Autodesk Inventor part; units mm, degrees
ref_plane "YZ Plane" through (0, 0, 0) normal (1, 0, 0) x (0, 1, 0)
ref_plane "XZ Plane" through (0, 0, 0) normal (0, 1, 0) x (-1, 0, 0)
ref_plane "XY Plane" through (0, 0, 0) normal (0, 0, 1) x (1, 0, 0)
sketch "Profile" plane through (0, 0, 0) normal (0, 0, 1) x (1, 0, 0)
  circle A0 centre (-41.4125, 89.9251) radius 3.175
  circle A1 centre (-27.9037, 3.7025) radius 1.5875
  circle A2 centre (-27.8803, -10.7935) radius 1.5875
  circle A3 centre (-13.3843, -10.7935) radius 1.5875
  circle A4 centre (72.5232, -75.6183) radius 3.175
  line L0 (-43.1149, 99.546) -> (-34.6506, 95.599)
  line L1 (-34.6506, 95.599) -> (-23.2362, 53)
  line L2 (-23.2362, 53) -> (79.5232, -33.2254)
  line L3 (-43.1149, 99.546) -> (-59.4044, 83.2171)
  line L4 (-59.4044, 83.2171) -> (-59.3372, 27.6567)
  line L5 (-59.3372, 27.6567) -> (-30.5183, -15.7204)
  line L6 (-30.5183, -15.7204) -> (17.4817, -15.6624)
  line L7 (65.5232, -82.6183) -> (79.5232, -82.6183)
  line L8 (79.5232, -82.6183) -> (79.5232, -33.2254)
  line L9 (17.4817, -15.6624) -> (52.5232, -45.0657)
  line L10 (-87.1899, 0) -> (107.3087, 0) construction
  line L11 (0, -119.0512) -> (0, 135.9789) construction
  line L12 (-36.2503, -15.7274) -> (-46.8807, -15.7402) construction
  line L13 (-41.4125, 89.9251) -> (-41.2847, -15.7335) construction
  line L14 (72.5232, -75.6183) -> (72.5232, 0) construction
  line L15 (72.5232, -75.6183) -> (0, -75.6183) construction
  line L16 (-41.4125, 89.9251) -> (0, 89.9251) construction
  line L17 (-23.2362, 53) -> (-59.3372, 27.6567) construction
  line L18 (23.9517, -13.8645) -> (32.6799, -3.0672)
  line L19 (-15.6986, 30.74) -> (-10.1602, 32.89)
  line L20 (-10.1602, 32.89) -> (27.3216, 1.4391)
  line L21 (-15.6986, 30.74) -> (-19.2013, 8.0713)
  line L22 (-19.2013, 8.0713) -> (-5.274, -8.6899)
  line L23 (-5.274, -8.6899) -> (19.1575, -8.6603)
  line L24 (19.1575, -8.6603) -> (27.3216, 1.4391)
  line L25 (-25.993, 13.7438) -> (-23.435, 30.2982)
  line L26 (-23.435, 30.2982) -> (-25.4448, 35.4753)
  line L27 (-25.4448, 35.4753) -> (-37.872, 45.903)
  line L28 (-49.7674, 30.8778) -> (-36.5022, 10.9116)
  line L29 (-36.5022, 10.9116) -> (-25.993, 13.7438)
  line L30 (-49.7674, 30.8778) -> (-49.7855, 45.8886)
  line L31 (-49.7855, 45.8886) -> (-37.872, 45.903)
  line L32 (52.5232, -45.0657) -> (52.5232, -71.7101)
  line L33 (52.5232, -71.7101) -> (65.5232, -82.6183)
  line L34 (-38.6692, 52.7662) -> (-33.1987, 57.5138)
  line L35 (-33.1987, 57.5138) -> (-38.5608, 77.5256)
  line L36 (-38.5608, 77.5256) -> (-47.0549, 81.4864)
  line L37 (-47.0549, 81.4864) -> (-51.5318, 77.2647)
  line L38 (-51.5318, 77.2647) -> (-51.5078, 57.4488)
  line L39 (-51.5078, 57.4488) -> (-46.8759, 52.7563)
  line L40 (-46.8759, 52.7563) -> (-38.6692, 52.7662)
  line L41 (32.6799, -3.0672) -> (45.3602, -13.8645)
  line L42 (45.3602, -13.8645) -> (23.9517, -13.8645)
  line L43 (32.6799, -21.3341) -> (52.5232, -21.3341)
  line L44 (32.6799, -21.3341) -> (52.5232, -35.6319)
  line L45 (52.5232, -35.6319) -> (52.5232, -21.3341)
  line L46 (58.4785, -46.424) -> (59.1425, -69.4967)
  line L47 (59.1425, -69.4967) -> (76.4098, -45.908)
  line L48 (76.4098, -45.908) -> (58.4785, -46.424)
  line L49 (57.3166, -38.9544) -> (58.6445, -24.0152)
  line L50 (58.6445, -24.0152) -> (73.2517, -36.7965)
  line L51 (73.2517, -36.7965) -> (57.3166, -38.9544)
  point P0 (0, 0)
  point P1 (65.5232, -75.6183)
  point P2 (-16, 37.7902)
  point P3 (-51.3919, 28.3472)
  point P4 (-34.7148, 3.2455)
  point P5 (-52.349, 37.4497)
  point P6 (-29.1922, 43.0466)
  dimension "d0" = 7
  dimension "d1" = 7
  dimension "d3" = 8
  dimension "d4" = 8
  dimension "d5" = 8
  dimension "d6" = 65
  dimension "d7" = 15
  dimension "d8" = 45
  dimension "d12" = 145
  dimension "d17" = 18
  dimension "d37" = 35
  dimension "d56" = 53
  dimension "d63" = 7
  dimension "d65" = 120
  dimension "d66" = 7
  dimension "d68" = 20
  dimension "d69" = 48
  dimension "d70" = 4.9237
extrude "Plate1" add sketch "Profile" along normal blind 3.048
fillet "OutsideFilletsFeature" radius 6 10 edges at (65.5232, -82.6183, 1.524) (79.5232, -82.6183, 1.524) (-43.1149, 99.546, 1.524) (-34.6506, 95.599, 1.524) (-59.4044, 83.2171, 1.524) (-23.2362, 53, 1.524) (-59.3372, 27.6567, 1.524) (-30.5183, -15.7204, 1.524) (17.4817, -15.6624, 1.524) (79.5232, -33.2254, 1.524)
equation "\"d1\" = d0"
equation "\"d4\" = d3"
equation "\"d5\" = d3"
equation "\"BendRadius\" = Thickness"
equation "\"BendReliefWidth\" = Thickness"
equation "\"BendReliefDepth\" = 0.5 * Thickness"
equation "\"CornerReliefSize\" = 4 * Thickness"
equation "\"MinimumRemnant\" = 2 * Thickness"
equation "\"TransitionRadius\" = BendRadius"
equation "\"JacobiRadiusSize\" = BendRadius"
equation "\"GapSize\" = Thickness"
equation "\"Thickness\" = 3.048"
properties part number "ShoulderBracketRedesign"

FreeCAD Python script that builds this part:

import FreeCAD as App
import Part
import Sketcher
from FreeCAD import Vector
Q = App.Units.Quantity


def edges_at(feature, points):
    """Names of the edges that pass closest to the given points."""
    edges = feature.Shape.Edges
    near = lambda p: min(range(len(edges)), key=lambda i: edges[i].distToShape(Part.Vertex(*p))[0])
    return sorted({f"Edge{near(p) + 1}" for p in points})


def add_polygon(sketch, points):
    """Adds a closed chain of lines whose ends are joined by coincident constraints."""
    first, n = sketch.GeometryCount, len(points)
    for a, b in zip(points, points[1:] + points[:1]):
        sketch.addGeometry(Part.LineSegment(App.Vector(*a, 0), App.Vector(*b, 0)), False)
    for i in range(n):
        sketch.addConstraint(Sketcher.Constraint("Coincident", first + i, 2, first + (i + 1) % n, 1))

doc = App.newDocument("Part")
params = doc.addObject("Spreadsheet::Sheet", "Params")
for row, (alias, value) in enumerate([
    ("sketch1_diameter", "0.25 in"),
    ("sketch1_diameter2", "0.25 in"),
    ("sketch1_diameter3", "0.125 in"),
    ("sketch1_diameter4", "0.125 in"),
    ("sketch1_diameter5", "0.125 in"),
    ("pad1_length", "0.12 in"),
    ("fillet_radius", "6 mm"),
], start=1):
    params.set(f"A{row}", alias)
    params.set(f"B{row}", "=" + value)
    params.setAlias(f"B{row}", alias)

body = doc.addObject("PartDesign::Body", "Body")

# Sketch on XY plane
sketch1 = body.newObject("Sketcher::SketchObject", "Sketch")
sketch1.AttachmentSupport = (doc.getObject("XY_Plane"), [""])
sketch1.MapMode = "FlatFace"
add_polygon(sketch1, [(-34.6506, 95.599), (-43.1149, 99.546), (-59.4044, 83.2171), (-59.3372, 27.6567), (-30.5183, -15.7204), (17.4817, -15.6624), (52.5232, -45.0657), (52.5232, -71.7101), (65.5232, -82.6183), (79.5232, -82.6183), (79.5232, -33.2254), (-23.2362, 53)])  # lines 0-11
sketch1.addGeometry(Part.Circle(Vector(-27.8803, -10.7935, 0), Vector(0, 0, 1), 1.5875), False)  # 12
sketch1.addGeometry(Part.Circle(Vector(-27.9037, 3.7025, 0), Vector(0, 0, 1), 1.5875), False)  # 13
sketch1.addGeometry(Part.Circle(Vector(-13.3843, -10.7935, 0), Vector(0, 0, 1), 1.5875), False)  # 14
sketch1.addGeometry(Part.Circle(Vector(72.5232, -75.6183, 0), Vector(0, 0, 1), 3.175), False)  # 15
add_polygon(sketch1, [(59.1425, -69.4967), (58.4785, -46.424), (76.4098, -45.908)])  # lines 16-18
add_polygon(sketch1, [(52.5232, -35.6319), (32.6799, -21.3341), (52.5232, -21.3341)])  # lines 19-21
add_polygon(sketch1, [(45.3602, -13.8645), (23.9517, -13.8645), (32.6799, -3.0672)])  # lines 22-24
add_polygon(sketch1, [(73.2517, -36.7965), (57.3166, -38.9544), (58.6445, -24.0152)])  # lines 25-27
add_polygon(sketch1, [(-23.435, 30.2982), (-25.993, 13.7438), (-36.5022, 10.9116), (-49.7674, 30.8778), (-49.7855, 45.8886), (-37.872, 45.903), (-25.4448, 35.4753)])  # lines 28-34
add_polygon(sketch1, [(-19.2013, 8.0713), (-15.6986, 30.74), (-10.1602, 32.89), (27.3216, 1.4391), (19.1575, -8.6603), (-5.274, -8.6899)])  # lines 35-40
add_polygon(sketch1, [(-33.1987, 57.5138), (-38.6692, 52.7662), (-46.8759, 52.7563), (-51.5078, 57.4488), (-51.5318, 77.2647), (-47.0549, 81.4864), (-38.5608, 77.5256)])  # lines 41-47
sketch1.addGeometry(Part.Circle(Vector(-41.4125, 89.9251, 0), Vector(0, 0, 1), 3.175), False)  # 48
sketch1.addConstraint([
    Sketcher.Constraint("Vertical", 6),
    Sketcher.Constraint("Horizontal", 8),
    Sketcher.Constraint("Vertical", 9),
    Sketcher.Constraint("Horizontal", 20),
    Sketcher.Constraint("Vertical", 21),
    Sketcher.Constraint("Horizontal", 22),
    Sketcher.Constraint("Diameter", 15, Q("0.25 in")),
    Sketcher.Constraint("Diameter", 48, Q("0.25 in")),
    Sketcher.Constraint("Diameter", 12, Q("0.125 in")),
    Sketcher.Constraint("Diameter", 13, Q("0.125 in")),
    Sketcher.Constraint("Diameter", 14, Q("0.125 in")),
    Sketcher.Constraint("DistanceX", 36, 2, -1, 1, Q("0.4 in")),
    Sketcher.Constraint("DistanceX", 5, 2, 15, 3, Q("0.7874 in")),
    Sketcher.Constraint("DistanceX", 7, 2, 15, 3, Q("0.2756 in")),
    Sketcher.Constraint("DistanceY", 7, 2, 15, 3, Q("0.2756 in")),
    Sketcher.Constraint("DistanceX", 15, 3, 8, 2, Q("0.2756 in")),
    Sketcher.Constraint("Distance", 4, Q("48 mm")),
    Sketcher.Constraint("DistanceY", 6, 2, 6, 1, Q("1.049 in")),
    Sketcher.Constraint("DistanceY", -1, 1, 10, 2, Q("53 mm")),
    Sketcher.Constraint("DistanceY", 3, 2, 28, 2, Q("1.16 in")),
    Sketcher.Constraint("DistanceX", 12, 3, 39, 2, Q("0.89 in")),
    Sketcher.Constraint("DistanceY", 9, 1, 9, 2, Q("1.9446 in")),
    Sketcher.Constraint("DistanceY", 21, 2, 21, 1, Q("0.5629 in")),
    Sketcher.Constraint("DistanceX", 4, 2, 15, 3, Q("2.167 in")),
    Sketcher.Constraint("DistanceY", 15, 3, 18, 2, Q("0.241 in")),
    Sketcher.Constraint("DistanceX", 20, 2, 9, 2, Q("1.063 in")),
    Sketcher.Constraint("DistanceX", 24, 2, 20, 2, Q("0.282 in")),
    Sketcher.Constraint("DistanceX", 20, 2, 26, 2, Q("0.241 in")),
    Sketcher.Constraint("DistanceX", 30, 2, 28, 2, Q("0.936 in")),
    Sketcher.Constraint("DistanceY", 30, 2, 33, 2, Q("0.181 in")),
    Sketcher.Constraint("DistanceY", 13, 3, 40, 2, Q("0.172 in")),
    Sketcher.Constraint("DistanceY", 45, 2, 0, 2, Q("0.711 in")),
    Sketcher.Constraint("DistanceX", 32, 2, 47, 2, Q("0.184 in")),
    Sketcher.Constraint("Distance", 0, Q("0.3677 in")),
    Sketcher.Constraint("Distance", 3, Q("2.0503 in")),
    Sketcher.Constraint("Distance", 11, Q("1.7363 in")),
    Sketcher.Constraint("Distance", 19, Q("0.9629 in")),
    Sketcher.Constraint("Distance", 23, Q("0.5466 in")),
    Sketcher.Constraint("Distance", 24, Q("0.6557 in")),
    Sketcher.Constraint("Distance", 25, Q("0.6331 in")),
    Sketcher.Constraint("Distance", 29, Q("0.4285 in")),
    Sketcher.Constraint("Distance", 36, Q("0.2339 in")),
    Sketcher.Constraint("Distance", 42, Q("0.3231 in")),
    Sketcher.Constraint("DistanceX", 22, 2, 22, 1, Q("21.4085 mm")),
    Sketcher.Constraint("DistanceY", 15, 3, -1, 1, Q("2.9771 in")),
    Sketcher.Constraint("DistanceX", 2, 2, -1, 1, Q("2.3361 in")),
    Sketcher.Constraint("DistanceX", 3, 2, -1, 1, Q("1.2015 in")),
    Sketcher.Constraint("DistanceX", 10, 2, -1, 1, Q("0.9148 in")),
    Sketcher.Constraint("DistanceX", 11, 2, -1, 1, Q("1.3642 in")),
    Sketcher.Constraint("DistanceX", -1, 1, 16, 2, Q("2.3023 in")),
    Sketcher.Constraint("DistanceY", 17, 2, -1, 1, Q("1.8074 in")),
    Sketcher.Constraint("DistanceY", -1, 1, 28, 2, Q("0.5411 in")),
    Sketcher.Constraint("DistanceX", 29, 2, -1, 1, Q("1.4371 in")),
    Sketcher.Constraint("DistanceY", -1, 1, 29, 2, Q("0.4296 in")),
    Sketcher.Constraint("DistanceY", -1, 1, 32, 2, Q("1.8072 in")),
    Sketcher.Constraint("DistanceX", 41, 2, -1, 1, Q("1.5224 in")),
    Sketcher.Constraint("DistanceY", -1, 1, 41, 2, Q("2.0774 in")),
    Sketcher.Constraint("DistanceX", 44, 2, -1, 1, Q("2.0288 in")),
    Sketcher.Constraint("DistanceY", -1, 1, 46, 2, Q("3.0522 in")),
    Sketcher.Constraint("DistanceY", 12, 3, 13, 3, Q("0.5707 in")),
    Sketcher.Constraint("DistanceX", 12, 3, 14, 3, Q("0.5707 in")),
    Sketcher.Constraint("DistanceY", 14, 3, 13, 3, Q("0.5707 in")),
    Sketcher.Constraint("DistanceX", 12, 3, 15, 3, Q("3.9529 in")),
    Sketcher.Constraint("DistanceY", 13, 3, 48, 3, Q("3.3946 in")),
    Sketcher.Constraint("DistanceX", 0, 2, 14, 3, Q("1.1705 in")),
    Sketcher.Constraint("DistanceY", 1, 2, 48, 3, Q("0.2641 in")),
    Sketcher.Constraint("DistanceX", 1, 2, 12, 3, Q("1.2411 in")),
    Sketcher.Constraint("DistanceX", 2, 2, 48, 3, Q("0.7057 in")),
    Sketcher.Constraint("DistanceY", 2, 2, 48, 3, Q("2.4515 in")),
    Sketcher.Constraint("DistanceY", 4, 2, 14, 3, Q("0.1917 in")),
    Sketcher.Constraint("DistanceY", 5, 2, 4, 2, Q("1.1576 in")),
    Sketcher.Constraint("DistanceX", 6, 2, 18, 2, Q("0.2606 in")),
    Sketcher.Constraint("DistanceY", 19, 2, 4, 2, Q("0.2233 in")),
    Sketcher.Constraint("DistanceY", 16, 2, 19, 2, Q("0.9878 in")),
    Sketcher.Constraint("DistanceY", 22, 2, 14, 3, Q("0.1209 in")),
    Sketcher.Constraint("DistanceY", 25, 2, 21, 2, Q("0.1308 in")),
    Sketcher.Constraint("DistanceX", 25, 2, 17, 2, Q("0.7517 in")),
    Sketcher.Constraint("DistanceX", 27, 2, 9, 2, Q("0.2469 in")),
    Sketcher.Constraint("DistanceY", 27, 2, 9, 2, Q("0.1406 in")),
    Sketcher.Constraint("DistanceY", 27, 2, 26, 2, Q("0.5032 in")),
    Sketcher.Constraint("DistanceY", 13, 3, 30, 2, Q("1.0699 in")),
    Sketcher.Constraint("DistanceY", 2, 2, 31, 2, Q("0.7178 in")),
    Sketcher.Constraint("DistanceX", 1, 2, 31, 2, Q("0.3787 in")),
    Sketcher.Constraint("DistanceX", 31, 2, 33, 2, Q("0.9583 in")),
    Sketcher.Constraint("DistanceX", 28, 2, 34, 2, Q("0.1007 in")),
    Sketcher.Constraint("DistanceY", 34, 2, 35, 2, Q("0.0174 in")),
    Sketcher.Constraint("DistanceX", 33, 2, 35, 2, Q("0.3837 in")),
    Sketcher.Constraint("DistanceY", 22, 2, 37, 2, Q("0.6025 in")),
    Sketcher.Constraint("DistanceX", 4, 2, 37, 2, Q("0.3874 in")),
    Sketcher.Constraint("DistanceY", 22, 2, 38, 2, Q("0.2049 in")),
    Sketcher.Constraint("DistanceY", 4, 2, 39, 2, Q("0.2745 in")),
    Sketcher.Constraint("DistanceX", 28, 2, 40, 2, Q("0.2674 in")),
    Sketcher.Constraint("DistanceY", 42, 2, 41, 2, Q("0.0004 in")),
    Sketcher.Constraint("DistanceX", 43, 2, 31, 2, Q("0.0678 in")),
    Sketcher.Constraint("DistanceY", 30, 2, 43, 2, Q("1.0461 in")),
    Sketcher.Constraint("DistanceY", 44, 2, 45, 2, Q("0.1662 in")),
    Sketcher.Constraint("DistanceX", 1, 2, 45, 2, Q("0.4862 in")),
    Sketcher.Constraint("DistanceY", 10, 2, 47, 2, Q("0.1777 in")),
    Sketcher.Constraint("Distance", 28, Q("16.7509 mm")),
    Sketcher.Constraint("Distance", 32, Q("11.9135 mm")),
    Sketcher.Constraint("Distance", 38, Q("12.9865 mm")),
    Sketcher.Constraint("Distance", 46, Q("9.3722 mm")),
    Sketcher.Constraint("DistanceX", 13, 3, -1, 1, Q("27.9037 mm")),
])
sketch1.setExpression("Constraints[50]", "Params.sketch1_diameter")
sketch1.setExpression("Constraints[51]", "Params.sketch1_diameter2")
sketch1.setExpression("Constraints[52]", "Params.sketch1_diameter3")
sketch1.setExpression("Constraints[53]", "Params.sketch1_diameter4")
sketch1.setExpression("Constraints[54]", "Params.sketch1_diameter5")
pad1 = body.newObject("PartDesign::Pad", "Pad")
pad1.Profile = sketch1
pad1.setExpression("Length", "Params.pad1_length")
doc.recompute()

fillet = body.newObject("PartDesign::Fillet", "Fillet")
fillet.Base = (pad1, edges_at(pad1, [
    (65.523, -82.618, 1.524),
    (79.523, -82.618, 1.524),
    (-43.115, 99.546, 1.524),
    (-34.651, 95.599, 1.524),
    (-59.404, 83.217, 1.524),
    (-23.236, 53, 1.524),
    (-59.337, 27.657, 1.524),
    (-30.518, -15.72, 1.524),
    (17.482, -15.662, 1.524),
    (79.523, -33.225, 1.524),
]))
fillet.setExpression("Radius", "Params.fillet_radius")

doc.recompute()
